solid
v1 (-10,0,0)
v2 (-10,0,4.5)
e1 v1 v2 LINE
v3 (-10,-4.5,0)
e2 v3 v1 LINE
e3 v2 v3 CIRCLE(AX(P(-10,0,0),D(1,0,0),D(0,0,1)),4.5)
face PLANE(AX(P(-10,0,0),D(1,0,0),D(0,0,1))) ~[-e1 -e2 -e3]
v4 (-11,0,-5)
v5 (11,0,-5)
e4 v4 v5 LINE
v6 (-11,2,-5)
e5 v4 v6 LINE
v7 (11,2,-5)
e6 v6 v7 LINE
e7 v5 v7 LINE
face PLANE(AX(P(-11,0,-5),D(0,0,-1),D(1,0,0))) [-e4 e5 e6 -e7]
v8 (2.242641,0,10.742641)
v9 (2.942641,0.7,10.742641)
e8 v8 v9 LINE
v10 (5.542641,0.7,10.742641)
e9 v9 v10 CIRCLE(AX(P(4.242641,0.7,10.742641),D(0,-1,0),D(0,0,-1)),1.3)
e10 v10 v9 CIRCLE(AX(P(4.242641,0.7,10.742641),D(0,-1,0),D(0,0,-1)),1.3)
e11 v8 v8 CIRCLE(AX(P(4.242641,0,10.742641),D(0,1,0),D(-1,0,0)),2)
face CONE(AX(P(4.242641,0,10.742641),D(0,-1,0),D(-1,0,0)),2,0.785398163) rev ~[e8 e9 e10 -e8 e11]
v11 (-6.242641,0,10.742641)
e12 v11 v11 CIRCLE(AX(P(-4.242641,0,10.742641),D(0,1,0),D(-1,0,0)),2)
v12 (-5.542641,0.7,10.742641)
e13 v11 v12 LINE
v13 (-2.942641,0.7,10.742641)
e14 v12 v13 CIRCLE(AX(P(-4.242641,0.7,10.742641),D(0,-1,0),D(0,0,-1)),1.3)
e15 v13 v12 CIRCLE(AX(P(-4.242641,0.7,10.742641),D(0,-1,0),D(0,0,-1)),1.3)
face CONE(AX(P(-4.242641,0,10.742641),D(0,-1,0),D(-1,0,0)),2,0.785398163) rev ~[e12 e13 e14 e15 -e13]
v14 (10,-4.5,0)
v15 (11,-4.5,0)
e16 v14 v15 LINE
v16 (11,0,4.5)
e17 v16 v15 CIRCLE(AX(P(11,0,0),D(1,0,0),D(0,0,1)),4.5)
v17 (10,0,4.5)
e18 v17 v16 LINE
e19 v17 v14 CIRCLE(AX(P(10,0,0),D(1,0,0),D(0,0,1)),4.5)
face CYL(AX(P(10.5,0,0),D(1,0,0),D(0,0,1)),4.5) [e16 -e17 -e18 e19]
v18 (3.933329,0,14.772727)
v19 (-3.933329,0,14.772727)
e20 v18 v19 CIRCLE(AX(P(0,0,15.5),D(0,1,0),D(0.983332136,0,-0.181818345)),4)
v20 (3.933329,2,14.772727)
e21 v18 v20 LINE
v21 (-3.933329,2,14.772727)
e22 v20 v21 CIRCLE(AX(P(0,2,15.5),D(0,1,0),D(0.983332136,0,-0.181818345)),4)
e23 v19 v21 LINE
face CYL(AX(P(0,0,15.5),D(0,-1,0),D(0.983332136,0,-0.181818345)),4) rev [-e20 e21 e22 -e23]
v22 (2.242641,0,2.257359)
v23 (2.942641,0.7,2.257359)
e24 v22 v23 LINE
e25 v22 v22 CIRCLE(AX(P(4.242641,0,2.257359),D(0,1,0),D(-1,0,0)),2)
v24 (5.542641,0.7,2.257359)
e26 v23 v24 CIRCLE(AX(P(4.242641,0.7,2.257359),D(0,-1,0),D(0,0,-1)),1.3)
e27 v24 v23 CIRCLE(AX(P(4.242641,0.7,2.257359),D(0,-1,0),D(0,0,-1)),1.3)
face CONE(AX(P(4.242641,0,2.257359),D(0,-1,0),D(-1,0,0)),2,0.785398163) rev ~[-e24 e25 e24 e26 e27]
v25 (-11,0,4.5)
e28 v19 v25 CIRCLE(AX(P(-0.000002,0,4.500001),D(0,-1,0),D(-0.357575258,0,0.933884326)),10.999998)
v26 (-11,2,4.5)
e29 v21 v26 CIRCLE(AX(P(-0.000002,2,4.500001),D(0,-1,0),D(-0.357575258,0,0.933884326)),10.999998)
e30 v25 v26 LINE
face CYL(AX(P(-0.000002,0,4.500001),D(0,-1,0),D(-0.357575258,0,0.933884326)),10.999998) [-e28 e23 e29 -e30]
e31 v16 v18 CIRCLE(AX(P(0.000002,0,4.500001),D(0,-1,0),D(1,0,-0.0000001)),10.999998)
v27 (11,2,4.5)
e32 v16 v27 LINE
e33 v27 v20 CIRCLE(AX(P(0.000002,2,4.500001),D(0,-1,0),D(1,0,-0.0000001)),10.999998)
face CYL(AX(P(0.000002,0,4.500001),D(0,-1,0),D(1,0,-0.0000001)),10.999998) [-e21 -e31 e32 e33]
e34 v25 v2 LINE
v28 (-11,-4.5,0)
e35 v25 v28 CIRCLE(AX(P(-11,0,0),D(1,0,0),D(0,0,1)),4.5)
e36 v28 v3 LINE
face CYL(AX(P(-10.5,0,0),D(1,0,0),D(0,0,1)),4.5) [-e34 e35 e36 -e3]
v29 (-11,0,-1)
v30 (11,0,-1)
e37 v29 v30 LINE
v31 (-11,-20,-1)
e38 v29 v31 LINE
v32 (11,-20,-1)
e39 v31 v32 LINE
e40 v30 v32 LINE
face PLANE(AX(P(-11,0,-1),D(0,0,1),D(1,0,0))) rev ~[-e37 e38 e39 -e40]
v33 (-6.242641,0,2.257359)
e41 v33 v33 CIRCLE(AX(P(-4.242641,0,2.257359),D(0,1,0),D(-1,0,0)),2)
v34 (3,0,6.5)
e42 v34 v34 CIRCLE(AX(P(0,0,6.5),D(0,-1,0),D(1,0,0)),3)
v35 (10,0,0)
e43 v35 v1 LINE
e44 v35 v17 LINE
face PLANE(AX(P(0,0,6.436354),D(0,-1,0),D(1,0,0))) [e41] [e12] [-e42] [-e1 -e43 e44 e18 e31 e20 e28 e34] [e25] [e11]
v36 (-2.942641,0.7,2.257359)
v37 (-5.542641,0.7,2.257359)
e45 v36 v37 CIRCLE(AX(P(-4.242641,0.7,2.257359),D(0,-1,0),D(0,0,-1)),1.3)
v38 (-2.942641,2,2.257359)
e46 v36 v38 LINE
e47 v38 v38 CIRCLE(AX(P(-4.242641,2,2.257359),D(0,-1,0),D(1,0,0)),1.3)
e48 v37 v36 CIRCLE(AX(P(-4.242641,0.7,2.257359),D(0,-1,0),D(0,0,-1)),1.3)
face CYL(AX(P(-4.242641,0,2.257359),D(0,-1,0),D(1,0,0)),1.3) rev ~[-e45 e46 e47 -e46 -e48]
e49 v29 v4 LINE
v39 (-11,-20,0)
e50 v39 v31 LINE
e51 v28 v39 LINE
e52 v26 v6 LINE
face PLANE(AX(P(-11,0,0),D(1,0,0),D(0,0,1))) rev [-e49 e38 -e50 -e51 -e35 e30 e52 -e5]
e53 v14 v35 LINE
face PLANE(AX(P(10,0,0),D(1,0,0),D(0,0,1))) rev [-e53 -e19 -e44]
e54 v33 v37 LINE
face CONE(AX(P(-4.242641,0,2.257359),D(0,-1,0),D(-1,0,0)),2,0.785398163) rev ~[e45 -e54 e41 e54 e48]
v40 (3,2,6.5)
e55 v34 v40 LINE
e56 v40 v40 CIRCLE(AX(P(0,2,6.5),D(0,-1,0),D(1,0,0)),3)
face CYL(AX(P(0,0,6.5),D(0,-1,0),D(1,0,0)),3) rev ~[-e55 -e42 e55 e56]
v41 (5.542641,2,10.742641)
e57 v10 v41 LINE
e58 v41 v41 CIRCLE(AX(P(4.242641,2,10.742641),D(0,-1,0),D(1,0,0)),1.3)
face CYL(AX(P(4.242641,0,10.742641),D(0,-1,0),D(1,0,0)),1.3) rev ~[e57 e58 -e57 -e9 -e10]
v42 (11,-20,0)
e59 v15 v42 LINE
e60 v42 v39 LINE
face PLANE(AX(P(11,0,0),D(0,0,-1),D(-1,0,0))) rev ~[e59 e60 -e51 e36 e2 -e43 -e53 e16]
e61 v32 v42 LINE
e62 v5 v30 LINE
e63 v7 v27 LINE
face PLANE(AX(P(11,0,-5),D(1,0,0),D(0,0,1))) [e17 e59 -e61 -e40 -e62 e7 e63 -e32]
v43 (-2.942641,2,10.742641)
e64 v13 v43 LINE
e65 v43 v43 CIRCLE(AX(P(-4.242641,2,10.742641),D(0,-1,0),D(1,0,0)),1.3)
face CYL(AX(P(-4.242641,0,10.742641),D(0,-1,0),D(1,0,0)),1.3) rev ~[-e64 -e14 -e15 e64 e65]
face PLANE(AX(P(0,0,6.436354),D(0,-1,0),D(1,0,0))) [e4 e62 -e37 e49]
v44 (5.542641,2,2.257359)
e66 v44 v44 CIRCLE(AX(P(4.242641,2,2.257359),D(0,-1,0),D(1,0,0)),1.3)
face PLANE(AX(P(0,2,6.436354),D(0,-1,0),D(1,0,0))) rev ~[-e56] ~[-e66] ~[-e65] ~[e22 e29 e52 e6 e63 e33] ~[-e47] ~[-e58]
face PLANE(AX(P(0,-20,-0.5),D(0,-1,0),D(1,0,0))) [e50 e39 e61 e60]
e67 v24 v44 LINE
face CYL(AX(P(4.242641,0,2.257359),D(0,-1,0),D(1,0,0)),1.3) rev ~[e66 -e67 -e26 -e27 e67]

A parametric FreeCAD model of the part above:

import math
import FreeCAD as App
import Part
import Sketcher
from FreeCAD import Vector

doc = App.newDocument("Part")
params = doc.addObject("Spreadsheet::Sheet", "Params")
for row, (alias, value) in enumerate([
    ("sketch1_diameter", "6 mm"),
    ("sketch1_radius", "10.999998 mm"),
    ("sketch1_radius2", "4 mm"),
    ("sketch1_diameter2", "2.6 mm"),
    ("sketch1_height", "9.5 mm"),
    ("pad1_length", "2 mm"),
    ("sketch2_width", "22 mm"),
    ("sketch2_height", "1 mm"),
    ("pad2_length", "20 mm"),
    ("sketch3_width", "1 mm"),
    ("sketch3_height", "4.5 mm"),
    ("revolution_angle", "91 deg"),
    ("sketch4_diameter", "2 mm"),
    ("hole_diameter", "2 mm"),
    ("hole_depth", "3 mm"),
    ("hole_csink_diameter", "4 mm"),
], start=1):
    params.set(f"A{row}", alias)
    params.set(f"B{row}", "=" + value)
    params.setAlias(f"B{row}", alias)

body = doc.addObject("PartDesign::Body", "Body")

# Sketch on XZ plane
sketch1 = body.newObject("Sketcher::SketchObject", "Sketch")
sketch1.AttachmentSupport = (doc.getObject("XZ_Plane"), [""])
sketch1.MapMode = "FlatFace"
sketch1.addGeometry([
    Part.ArcOfCircle(Part.Circle(Vector(0, 4.5, 0), Vector(0, 0, 1), 11), math.radians(0), math.radians(69)),  # 0
    Part.ArcOfCircle(Part.Circle(Vector(0, 15.5, 0), Vector(0, 0, 1), 4), math.radians(-170), math.radians(-10)),  # 1
    Part.ArcOfCircle(Part.Circle(Vector(0, 4.5, 0), Vector(0, 0, 1), 11), math.radians(111), math.radians(180)),  # 2
    Part.LineSegment(Vector(-11, 4.5, 0), Vector(-11, -5, 0)),  # 3
    Part.LineSegment(Vector(-11, -5, 0), Vector(11, -5, 0)),  # 4
    Part.LineSegment(Vector(11, -5, 0), Vector(11, 4.5, 0)),  # 5
    Part.Circle(Vector(-4.2, 2.3, 0), Vector(0, 0, 1), 1.3),  # 6
    Part.Circle(Vector(4.2, 2.3, 0), Vector(0, 0, 1), 1.3),  # 7
    Part.Circle(Vector(-4.2, 10.7, 0), Vector(0, 0, 1), 1.3),  # 8
    Part.Circle(Vector(0, 6.5, 0), Vector(0, 0, 1), 3),  # 9
    Part.Circle(Vector(4.2, 10.7, 0), Vector(0, 0, 1), 1.3),  # 10
], False)
sketch1.addConstraint([
    Sketcher.Constraint("Coincident", 0, 2, 1, 2),
    Sketcher.Constraint("Coincident", 1, 1, 2, 1),
    Sketcher.Constraint("Tangent", 2, 2, 3, 1),
    Sketcher.Constraint("Coincident", 3, 2, 4, 1),
    Sketcher.Constraint("Coincident", 4, 2, 5, 1),
    Sketcher.Constraint("Tangent", 5, 2, 0, 1),
    Sketcher.Constraint("Vertical", 3),
    Sketcher.Constraint("Horizontal", 4),
    Sketcher.Constraint("Vertical", 5),
    Sketcher.Constraint("Coincident", 2, 3, 0, 3),
    Sketcher.Constraint("Equal", 0, 2),
    Sketcher.Constraint("Equal", 6, 7),
    Sketcher.Constraint("Equal", 7, 8),
    Sketcher.Constraint("Equal", 8, 10),
    Sketcher.Constraint("Symmetric", 6, 3, 7, 3, -2),
    Sketcher.Constraint("Symmetric", 8, 3, 10, 3, -2),
    Sketcher.Constraint("Symmetric", 0, 2, 1, 1, -2),
    Sketcher.Constraint("PointOnObject", 9, 3, -2),
    Sketcher.Constraint("Vertical", 6, 3, 8, 3),
    Sketcher.Constraint("Diameter", 9, 6.0),
    Sketcher.Constraint("Radius", 0, 10.999998),
    Sketcher.Constraint("Radius", 1, 4.0),
    Sketcher.Constraint("Diameter", 6, 2.6),
    Sketcher.Constraint("DistanceY", 3, 2, 3, 1, 9.5),
    Sketcher.Constraint("DistanceY", 3, 2, -1, 1, 5.0),
    Sketcher.Constraint("DistanceY", 0, 3, 1, 3, 10.999999),
    Sketcher.Constraint("DistanceY", 0, 3, 9, 3, 1.999999),
    Sketcher.Constraint("DistanceX", 6, 3, -1, 1, 4.242641),
    Sketcher.Constraint("DistanceY", -1, 1, 6, 3, 2.257359),
    Sketcher.Constraint("DistanceY", -1, 1, 8, 3, 10.742641),
])
sketch1.setExpression("Constraints[19]", "Params.sketch1_diameter")
sketch1.setExpression("Constraints[20]", "Params.sketch1_radius")
sketch1.setExpression("Constraints[21]", "Params.sketch1_radius2")
sketch1.setExpression("Constraints[22]", "Params.sketch1_diameter2")
sketch1.setExpression("Constraints[23]", "Params.sketch1_height")
pad1 = body.newObject("PartDesign::Pad", "Pad")
pad1.Profile = sketch1
pad1.setExpression("Length", "Params.pad1_length")
pad1.Reversed = True
body2 = doc.addObject("PartDesign::Body", "Body001")

# Sketch on XZ plane
sketch2 = body2.newObject("Sketcher::SketchObject", "Sketch001")
sketch2.AttachmentSupport = (doc.getObject("XZ_Plane001"), [""])
sketch2.MapMode = "FlatFace"
sketch2.addGeometry([
    Part.LineSegment(Vector(-11, -1, 0), Vector(11, -1, 0)),
    Part.LineSegment(Vector(11, -1, 0), Vector(11, 0, 0)),
    Part.LineSegment(Vector(11, 0, 0), Vector(-11, 0, 0)),
    Part.LineSegment(Vector(-11, 0, 0), Vector(-11, -1, 0)),
], False)
sketch2.addConstraint([
    Sketcher.Constraint("Coincident", 0, 2, 1, 1),
    Sketcher.Constraint("Coincident", 1, 2, 2, 1),
    Sketcher.Constraint("Coincident", 2, 2, 3, 1),
    Sketcher.Constraint("Coincident", 3, 2, 0, 1),
    Sketcher.Constraint("Horizontal", 0),
    Sketcher.Constraint("Vertical", 1),
    Sketcher.Constraint("Horizontal", 2),
    Sketcher.Constraint("Vertical", 3),
    Sketcher.Constraint("Symmetric", 1, 2, 2, 2, -1, 1),
    Sketcher.Constraint("DistanceX", 0, 1, 0, 2, 22.0),
    Sketcher.Constraint("DistanceY", 1, 1, 1, 2, 1.0),
])
sketch2.setExpression("Constraints[9]", "Params.sketch2_width")
sketch2.setExpression("Constraints[10]", "Params.sketch2_height")
pad2 = body2.newObject("PartDesign::Pad", "Pad001")
pad2.Profile = sketch2
pad2.setExpression("Length", "Params.pad2_length")
doc.recompute()

boolean = body.newObject("PartDesign::Boolean", "Boolean")
boolean.Type = "Fuse"
boolean.addObjects([body2])

# Sketch on XZ plane
sketch3 = body.newObject("Sketcher::SketchObject", "Sketch002")
sketch3.AttachmentSupport = (doc.getObject("XZ_Plane"), [""])
sketch3.MapMode = "FlatFace"
sketch3.addGeometry([
    Part.LineSegment(Vector(-11, 4.5, 0), Vector(-11, 0, 0)),  # 0
    Part.LineSegment(Vector(-11, 0, 0), Vector(-10, 0, 0)),  # 1
    Part.LineSegment(Vector(-10, 0, 0), Vector(-10, 4.5, 0)),  # 2
    Part.LineSegment(Vector(-10, 4.5, 0), Vector(-11, 4.5, 0)),  # 3
    Part.LineSegment(Vector(10, 4.5, 0), Vector(10, 0, 0)),  # 4
    Part.LineSegment(Vector(10, 0, 0), Vector(11, 0, 0)),  # 5
    Part.LineSegment(Vector(11, 0, 0), Vector(11, 4.5, 0)),  # 6
    Part.LineSegment(Vector(11, 4.5, 0), Vector(10, 4.5, 0)),  # 7
], False)
sketch3.addConstraint([
    Sketcher.Constraint("Coincident", 0, 2, 1, 1),
    Sketcher.Constraint("Coincident", 1, 2, 2, 1),
    Sketcher.Constraint("Coincident", 2, 2, 3, 1),
    Sketcher.Constraint("Coincident", 3, 2, 0, 1),
    Sketcher.Constraint("Coincident", 4, 2, 5, 1),
    Sketcher.Constraint("Coincident", 5, 2, 6, 1),
    Sketcher.Constraint("Coincident", 6, 2, 7, 1),
    Sketcher.Constraint("Coincident", 7, 2, 4, 1),
    Sketcher.Constraint("Vertical", 0),
    Sketcher.Constraint("Horizontal", 1),
    Sketcher.Constraint("Vertical", 2),
    Sketcher.Constraint("Horizontal", 3),
    Sketcher.Constraint("Vertical", 4),
    Sketcher.Constraint("Horizontal", 5),
    Sketcher.Constraint("Vertical", 6),
    Sketcher.Constraint("Horizontal", 7),
    Sketcher.Constraint("Symmetric", 1, 2, 4, 2, -1, 1),
    Sketcher.Constraint("Symmetric", 0, 2, 5, 2, -2),
    Sketcher.Constraint("Horizontal", 3, 2, 6, 2),
    Sketcher.Constraint("DistanceX", 1, 1, 1, 2, 1.0),
    Sketcher.Constraint("DistanceY", 0, 2, 0, 1, 4.5),
    Sketcher.Constraint("DistanceX", 0, 2, -1, 1, 11.0),
])
sketch3.setExpression("Constraints[19]", "Params.sketch3_width")
sketch3.setExpression("Constraints[20]", "Params.sketch3_height")
revolution = body.newObject("PartDesign::Revolution", "Revolution")
revolution.Profile = sketch3
revolution.ReferenceAxis = (sketch3, ["H_Axis"])
revolution.setExpression("Angle", "Params.revolution_angle")

# Sketch on XZ plane
sketch4 = body.newObject("Sketcher::SketchObject", "Sketch003")
sketch4.AttachmentSupport = (doc.getObject("XZ_Plane"), [""])
sketch4.MapMode = "FlatFace"
sketch4.addGeometry([
    Part.Circle(Vector(-4.2, 10.7, 0), Vector(0, 0, 1), 1),
    Part.Circle(Vector(-4.2, 2.3, 0), Vector(0, 0, 1), 1),
    Part.Circle(Vector(4.2, 2.3, 0), Vector(0, 0, 1), 1),
    Part.Circle(Vector(4.2, 10.7, 0), Vector(0, 0, 1), 1),
], False)
sketch4.addConstraint([
    Sketcher.Constraint("Equal", 0, 1),
    Sketcher.Constraint("Equal", 1, 2),
    Sketcher.Constraint("Equal", 2, 3),
    Sketcher.Constraint("Symmetric", 1, 3, 2, 3, -2),
    Sketcher.Constraint("Symmetric", 0, 3, 3, 3, -2),
    Sketcher.Constraint("Vertical", 0, 3, 1, 3),
    Sketcher.Constraint("Diameter", 0, 2.0),
    Sketcher.Constraint("DistanceX", 0, 3, -1, 1, 4.242641),
    Sketcher.Constraint("DistanceY", -1, 1, 0, 3, 10.742641),
    Sketcher.Constraint("DistanceY", -1, 1, 1, 3, 2.257359),
])
sketch4.setExpression("Constraints[6]", "Params.sketch4_diameter")
doc.recompute()
hole = body.newObject("PartDesign::Hole", "Hole")
hole.Profile = sketch4
hole.ThreadType = "None"
hole.setExpression("Diameter", "Params.hole_diameter")
hole.DepthType = "Dimension"
hole.setExpression("Depth", "Params.hole_depth")
hole.DrillPoint = "Flat"
hole.HoleCutType = "Countersink"
hole.setExpression("HoleCutDiameter", "Params.hole_csink_diameter")
hole.HoleCutCountersinkAngle = 90

doc.recompute()
